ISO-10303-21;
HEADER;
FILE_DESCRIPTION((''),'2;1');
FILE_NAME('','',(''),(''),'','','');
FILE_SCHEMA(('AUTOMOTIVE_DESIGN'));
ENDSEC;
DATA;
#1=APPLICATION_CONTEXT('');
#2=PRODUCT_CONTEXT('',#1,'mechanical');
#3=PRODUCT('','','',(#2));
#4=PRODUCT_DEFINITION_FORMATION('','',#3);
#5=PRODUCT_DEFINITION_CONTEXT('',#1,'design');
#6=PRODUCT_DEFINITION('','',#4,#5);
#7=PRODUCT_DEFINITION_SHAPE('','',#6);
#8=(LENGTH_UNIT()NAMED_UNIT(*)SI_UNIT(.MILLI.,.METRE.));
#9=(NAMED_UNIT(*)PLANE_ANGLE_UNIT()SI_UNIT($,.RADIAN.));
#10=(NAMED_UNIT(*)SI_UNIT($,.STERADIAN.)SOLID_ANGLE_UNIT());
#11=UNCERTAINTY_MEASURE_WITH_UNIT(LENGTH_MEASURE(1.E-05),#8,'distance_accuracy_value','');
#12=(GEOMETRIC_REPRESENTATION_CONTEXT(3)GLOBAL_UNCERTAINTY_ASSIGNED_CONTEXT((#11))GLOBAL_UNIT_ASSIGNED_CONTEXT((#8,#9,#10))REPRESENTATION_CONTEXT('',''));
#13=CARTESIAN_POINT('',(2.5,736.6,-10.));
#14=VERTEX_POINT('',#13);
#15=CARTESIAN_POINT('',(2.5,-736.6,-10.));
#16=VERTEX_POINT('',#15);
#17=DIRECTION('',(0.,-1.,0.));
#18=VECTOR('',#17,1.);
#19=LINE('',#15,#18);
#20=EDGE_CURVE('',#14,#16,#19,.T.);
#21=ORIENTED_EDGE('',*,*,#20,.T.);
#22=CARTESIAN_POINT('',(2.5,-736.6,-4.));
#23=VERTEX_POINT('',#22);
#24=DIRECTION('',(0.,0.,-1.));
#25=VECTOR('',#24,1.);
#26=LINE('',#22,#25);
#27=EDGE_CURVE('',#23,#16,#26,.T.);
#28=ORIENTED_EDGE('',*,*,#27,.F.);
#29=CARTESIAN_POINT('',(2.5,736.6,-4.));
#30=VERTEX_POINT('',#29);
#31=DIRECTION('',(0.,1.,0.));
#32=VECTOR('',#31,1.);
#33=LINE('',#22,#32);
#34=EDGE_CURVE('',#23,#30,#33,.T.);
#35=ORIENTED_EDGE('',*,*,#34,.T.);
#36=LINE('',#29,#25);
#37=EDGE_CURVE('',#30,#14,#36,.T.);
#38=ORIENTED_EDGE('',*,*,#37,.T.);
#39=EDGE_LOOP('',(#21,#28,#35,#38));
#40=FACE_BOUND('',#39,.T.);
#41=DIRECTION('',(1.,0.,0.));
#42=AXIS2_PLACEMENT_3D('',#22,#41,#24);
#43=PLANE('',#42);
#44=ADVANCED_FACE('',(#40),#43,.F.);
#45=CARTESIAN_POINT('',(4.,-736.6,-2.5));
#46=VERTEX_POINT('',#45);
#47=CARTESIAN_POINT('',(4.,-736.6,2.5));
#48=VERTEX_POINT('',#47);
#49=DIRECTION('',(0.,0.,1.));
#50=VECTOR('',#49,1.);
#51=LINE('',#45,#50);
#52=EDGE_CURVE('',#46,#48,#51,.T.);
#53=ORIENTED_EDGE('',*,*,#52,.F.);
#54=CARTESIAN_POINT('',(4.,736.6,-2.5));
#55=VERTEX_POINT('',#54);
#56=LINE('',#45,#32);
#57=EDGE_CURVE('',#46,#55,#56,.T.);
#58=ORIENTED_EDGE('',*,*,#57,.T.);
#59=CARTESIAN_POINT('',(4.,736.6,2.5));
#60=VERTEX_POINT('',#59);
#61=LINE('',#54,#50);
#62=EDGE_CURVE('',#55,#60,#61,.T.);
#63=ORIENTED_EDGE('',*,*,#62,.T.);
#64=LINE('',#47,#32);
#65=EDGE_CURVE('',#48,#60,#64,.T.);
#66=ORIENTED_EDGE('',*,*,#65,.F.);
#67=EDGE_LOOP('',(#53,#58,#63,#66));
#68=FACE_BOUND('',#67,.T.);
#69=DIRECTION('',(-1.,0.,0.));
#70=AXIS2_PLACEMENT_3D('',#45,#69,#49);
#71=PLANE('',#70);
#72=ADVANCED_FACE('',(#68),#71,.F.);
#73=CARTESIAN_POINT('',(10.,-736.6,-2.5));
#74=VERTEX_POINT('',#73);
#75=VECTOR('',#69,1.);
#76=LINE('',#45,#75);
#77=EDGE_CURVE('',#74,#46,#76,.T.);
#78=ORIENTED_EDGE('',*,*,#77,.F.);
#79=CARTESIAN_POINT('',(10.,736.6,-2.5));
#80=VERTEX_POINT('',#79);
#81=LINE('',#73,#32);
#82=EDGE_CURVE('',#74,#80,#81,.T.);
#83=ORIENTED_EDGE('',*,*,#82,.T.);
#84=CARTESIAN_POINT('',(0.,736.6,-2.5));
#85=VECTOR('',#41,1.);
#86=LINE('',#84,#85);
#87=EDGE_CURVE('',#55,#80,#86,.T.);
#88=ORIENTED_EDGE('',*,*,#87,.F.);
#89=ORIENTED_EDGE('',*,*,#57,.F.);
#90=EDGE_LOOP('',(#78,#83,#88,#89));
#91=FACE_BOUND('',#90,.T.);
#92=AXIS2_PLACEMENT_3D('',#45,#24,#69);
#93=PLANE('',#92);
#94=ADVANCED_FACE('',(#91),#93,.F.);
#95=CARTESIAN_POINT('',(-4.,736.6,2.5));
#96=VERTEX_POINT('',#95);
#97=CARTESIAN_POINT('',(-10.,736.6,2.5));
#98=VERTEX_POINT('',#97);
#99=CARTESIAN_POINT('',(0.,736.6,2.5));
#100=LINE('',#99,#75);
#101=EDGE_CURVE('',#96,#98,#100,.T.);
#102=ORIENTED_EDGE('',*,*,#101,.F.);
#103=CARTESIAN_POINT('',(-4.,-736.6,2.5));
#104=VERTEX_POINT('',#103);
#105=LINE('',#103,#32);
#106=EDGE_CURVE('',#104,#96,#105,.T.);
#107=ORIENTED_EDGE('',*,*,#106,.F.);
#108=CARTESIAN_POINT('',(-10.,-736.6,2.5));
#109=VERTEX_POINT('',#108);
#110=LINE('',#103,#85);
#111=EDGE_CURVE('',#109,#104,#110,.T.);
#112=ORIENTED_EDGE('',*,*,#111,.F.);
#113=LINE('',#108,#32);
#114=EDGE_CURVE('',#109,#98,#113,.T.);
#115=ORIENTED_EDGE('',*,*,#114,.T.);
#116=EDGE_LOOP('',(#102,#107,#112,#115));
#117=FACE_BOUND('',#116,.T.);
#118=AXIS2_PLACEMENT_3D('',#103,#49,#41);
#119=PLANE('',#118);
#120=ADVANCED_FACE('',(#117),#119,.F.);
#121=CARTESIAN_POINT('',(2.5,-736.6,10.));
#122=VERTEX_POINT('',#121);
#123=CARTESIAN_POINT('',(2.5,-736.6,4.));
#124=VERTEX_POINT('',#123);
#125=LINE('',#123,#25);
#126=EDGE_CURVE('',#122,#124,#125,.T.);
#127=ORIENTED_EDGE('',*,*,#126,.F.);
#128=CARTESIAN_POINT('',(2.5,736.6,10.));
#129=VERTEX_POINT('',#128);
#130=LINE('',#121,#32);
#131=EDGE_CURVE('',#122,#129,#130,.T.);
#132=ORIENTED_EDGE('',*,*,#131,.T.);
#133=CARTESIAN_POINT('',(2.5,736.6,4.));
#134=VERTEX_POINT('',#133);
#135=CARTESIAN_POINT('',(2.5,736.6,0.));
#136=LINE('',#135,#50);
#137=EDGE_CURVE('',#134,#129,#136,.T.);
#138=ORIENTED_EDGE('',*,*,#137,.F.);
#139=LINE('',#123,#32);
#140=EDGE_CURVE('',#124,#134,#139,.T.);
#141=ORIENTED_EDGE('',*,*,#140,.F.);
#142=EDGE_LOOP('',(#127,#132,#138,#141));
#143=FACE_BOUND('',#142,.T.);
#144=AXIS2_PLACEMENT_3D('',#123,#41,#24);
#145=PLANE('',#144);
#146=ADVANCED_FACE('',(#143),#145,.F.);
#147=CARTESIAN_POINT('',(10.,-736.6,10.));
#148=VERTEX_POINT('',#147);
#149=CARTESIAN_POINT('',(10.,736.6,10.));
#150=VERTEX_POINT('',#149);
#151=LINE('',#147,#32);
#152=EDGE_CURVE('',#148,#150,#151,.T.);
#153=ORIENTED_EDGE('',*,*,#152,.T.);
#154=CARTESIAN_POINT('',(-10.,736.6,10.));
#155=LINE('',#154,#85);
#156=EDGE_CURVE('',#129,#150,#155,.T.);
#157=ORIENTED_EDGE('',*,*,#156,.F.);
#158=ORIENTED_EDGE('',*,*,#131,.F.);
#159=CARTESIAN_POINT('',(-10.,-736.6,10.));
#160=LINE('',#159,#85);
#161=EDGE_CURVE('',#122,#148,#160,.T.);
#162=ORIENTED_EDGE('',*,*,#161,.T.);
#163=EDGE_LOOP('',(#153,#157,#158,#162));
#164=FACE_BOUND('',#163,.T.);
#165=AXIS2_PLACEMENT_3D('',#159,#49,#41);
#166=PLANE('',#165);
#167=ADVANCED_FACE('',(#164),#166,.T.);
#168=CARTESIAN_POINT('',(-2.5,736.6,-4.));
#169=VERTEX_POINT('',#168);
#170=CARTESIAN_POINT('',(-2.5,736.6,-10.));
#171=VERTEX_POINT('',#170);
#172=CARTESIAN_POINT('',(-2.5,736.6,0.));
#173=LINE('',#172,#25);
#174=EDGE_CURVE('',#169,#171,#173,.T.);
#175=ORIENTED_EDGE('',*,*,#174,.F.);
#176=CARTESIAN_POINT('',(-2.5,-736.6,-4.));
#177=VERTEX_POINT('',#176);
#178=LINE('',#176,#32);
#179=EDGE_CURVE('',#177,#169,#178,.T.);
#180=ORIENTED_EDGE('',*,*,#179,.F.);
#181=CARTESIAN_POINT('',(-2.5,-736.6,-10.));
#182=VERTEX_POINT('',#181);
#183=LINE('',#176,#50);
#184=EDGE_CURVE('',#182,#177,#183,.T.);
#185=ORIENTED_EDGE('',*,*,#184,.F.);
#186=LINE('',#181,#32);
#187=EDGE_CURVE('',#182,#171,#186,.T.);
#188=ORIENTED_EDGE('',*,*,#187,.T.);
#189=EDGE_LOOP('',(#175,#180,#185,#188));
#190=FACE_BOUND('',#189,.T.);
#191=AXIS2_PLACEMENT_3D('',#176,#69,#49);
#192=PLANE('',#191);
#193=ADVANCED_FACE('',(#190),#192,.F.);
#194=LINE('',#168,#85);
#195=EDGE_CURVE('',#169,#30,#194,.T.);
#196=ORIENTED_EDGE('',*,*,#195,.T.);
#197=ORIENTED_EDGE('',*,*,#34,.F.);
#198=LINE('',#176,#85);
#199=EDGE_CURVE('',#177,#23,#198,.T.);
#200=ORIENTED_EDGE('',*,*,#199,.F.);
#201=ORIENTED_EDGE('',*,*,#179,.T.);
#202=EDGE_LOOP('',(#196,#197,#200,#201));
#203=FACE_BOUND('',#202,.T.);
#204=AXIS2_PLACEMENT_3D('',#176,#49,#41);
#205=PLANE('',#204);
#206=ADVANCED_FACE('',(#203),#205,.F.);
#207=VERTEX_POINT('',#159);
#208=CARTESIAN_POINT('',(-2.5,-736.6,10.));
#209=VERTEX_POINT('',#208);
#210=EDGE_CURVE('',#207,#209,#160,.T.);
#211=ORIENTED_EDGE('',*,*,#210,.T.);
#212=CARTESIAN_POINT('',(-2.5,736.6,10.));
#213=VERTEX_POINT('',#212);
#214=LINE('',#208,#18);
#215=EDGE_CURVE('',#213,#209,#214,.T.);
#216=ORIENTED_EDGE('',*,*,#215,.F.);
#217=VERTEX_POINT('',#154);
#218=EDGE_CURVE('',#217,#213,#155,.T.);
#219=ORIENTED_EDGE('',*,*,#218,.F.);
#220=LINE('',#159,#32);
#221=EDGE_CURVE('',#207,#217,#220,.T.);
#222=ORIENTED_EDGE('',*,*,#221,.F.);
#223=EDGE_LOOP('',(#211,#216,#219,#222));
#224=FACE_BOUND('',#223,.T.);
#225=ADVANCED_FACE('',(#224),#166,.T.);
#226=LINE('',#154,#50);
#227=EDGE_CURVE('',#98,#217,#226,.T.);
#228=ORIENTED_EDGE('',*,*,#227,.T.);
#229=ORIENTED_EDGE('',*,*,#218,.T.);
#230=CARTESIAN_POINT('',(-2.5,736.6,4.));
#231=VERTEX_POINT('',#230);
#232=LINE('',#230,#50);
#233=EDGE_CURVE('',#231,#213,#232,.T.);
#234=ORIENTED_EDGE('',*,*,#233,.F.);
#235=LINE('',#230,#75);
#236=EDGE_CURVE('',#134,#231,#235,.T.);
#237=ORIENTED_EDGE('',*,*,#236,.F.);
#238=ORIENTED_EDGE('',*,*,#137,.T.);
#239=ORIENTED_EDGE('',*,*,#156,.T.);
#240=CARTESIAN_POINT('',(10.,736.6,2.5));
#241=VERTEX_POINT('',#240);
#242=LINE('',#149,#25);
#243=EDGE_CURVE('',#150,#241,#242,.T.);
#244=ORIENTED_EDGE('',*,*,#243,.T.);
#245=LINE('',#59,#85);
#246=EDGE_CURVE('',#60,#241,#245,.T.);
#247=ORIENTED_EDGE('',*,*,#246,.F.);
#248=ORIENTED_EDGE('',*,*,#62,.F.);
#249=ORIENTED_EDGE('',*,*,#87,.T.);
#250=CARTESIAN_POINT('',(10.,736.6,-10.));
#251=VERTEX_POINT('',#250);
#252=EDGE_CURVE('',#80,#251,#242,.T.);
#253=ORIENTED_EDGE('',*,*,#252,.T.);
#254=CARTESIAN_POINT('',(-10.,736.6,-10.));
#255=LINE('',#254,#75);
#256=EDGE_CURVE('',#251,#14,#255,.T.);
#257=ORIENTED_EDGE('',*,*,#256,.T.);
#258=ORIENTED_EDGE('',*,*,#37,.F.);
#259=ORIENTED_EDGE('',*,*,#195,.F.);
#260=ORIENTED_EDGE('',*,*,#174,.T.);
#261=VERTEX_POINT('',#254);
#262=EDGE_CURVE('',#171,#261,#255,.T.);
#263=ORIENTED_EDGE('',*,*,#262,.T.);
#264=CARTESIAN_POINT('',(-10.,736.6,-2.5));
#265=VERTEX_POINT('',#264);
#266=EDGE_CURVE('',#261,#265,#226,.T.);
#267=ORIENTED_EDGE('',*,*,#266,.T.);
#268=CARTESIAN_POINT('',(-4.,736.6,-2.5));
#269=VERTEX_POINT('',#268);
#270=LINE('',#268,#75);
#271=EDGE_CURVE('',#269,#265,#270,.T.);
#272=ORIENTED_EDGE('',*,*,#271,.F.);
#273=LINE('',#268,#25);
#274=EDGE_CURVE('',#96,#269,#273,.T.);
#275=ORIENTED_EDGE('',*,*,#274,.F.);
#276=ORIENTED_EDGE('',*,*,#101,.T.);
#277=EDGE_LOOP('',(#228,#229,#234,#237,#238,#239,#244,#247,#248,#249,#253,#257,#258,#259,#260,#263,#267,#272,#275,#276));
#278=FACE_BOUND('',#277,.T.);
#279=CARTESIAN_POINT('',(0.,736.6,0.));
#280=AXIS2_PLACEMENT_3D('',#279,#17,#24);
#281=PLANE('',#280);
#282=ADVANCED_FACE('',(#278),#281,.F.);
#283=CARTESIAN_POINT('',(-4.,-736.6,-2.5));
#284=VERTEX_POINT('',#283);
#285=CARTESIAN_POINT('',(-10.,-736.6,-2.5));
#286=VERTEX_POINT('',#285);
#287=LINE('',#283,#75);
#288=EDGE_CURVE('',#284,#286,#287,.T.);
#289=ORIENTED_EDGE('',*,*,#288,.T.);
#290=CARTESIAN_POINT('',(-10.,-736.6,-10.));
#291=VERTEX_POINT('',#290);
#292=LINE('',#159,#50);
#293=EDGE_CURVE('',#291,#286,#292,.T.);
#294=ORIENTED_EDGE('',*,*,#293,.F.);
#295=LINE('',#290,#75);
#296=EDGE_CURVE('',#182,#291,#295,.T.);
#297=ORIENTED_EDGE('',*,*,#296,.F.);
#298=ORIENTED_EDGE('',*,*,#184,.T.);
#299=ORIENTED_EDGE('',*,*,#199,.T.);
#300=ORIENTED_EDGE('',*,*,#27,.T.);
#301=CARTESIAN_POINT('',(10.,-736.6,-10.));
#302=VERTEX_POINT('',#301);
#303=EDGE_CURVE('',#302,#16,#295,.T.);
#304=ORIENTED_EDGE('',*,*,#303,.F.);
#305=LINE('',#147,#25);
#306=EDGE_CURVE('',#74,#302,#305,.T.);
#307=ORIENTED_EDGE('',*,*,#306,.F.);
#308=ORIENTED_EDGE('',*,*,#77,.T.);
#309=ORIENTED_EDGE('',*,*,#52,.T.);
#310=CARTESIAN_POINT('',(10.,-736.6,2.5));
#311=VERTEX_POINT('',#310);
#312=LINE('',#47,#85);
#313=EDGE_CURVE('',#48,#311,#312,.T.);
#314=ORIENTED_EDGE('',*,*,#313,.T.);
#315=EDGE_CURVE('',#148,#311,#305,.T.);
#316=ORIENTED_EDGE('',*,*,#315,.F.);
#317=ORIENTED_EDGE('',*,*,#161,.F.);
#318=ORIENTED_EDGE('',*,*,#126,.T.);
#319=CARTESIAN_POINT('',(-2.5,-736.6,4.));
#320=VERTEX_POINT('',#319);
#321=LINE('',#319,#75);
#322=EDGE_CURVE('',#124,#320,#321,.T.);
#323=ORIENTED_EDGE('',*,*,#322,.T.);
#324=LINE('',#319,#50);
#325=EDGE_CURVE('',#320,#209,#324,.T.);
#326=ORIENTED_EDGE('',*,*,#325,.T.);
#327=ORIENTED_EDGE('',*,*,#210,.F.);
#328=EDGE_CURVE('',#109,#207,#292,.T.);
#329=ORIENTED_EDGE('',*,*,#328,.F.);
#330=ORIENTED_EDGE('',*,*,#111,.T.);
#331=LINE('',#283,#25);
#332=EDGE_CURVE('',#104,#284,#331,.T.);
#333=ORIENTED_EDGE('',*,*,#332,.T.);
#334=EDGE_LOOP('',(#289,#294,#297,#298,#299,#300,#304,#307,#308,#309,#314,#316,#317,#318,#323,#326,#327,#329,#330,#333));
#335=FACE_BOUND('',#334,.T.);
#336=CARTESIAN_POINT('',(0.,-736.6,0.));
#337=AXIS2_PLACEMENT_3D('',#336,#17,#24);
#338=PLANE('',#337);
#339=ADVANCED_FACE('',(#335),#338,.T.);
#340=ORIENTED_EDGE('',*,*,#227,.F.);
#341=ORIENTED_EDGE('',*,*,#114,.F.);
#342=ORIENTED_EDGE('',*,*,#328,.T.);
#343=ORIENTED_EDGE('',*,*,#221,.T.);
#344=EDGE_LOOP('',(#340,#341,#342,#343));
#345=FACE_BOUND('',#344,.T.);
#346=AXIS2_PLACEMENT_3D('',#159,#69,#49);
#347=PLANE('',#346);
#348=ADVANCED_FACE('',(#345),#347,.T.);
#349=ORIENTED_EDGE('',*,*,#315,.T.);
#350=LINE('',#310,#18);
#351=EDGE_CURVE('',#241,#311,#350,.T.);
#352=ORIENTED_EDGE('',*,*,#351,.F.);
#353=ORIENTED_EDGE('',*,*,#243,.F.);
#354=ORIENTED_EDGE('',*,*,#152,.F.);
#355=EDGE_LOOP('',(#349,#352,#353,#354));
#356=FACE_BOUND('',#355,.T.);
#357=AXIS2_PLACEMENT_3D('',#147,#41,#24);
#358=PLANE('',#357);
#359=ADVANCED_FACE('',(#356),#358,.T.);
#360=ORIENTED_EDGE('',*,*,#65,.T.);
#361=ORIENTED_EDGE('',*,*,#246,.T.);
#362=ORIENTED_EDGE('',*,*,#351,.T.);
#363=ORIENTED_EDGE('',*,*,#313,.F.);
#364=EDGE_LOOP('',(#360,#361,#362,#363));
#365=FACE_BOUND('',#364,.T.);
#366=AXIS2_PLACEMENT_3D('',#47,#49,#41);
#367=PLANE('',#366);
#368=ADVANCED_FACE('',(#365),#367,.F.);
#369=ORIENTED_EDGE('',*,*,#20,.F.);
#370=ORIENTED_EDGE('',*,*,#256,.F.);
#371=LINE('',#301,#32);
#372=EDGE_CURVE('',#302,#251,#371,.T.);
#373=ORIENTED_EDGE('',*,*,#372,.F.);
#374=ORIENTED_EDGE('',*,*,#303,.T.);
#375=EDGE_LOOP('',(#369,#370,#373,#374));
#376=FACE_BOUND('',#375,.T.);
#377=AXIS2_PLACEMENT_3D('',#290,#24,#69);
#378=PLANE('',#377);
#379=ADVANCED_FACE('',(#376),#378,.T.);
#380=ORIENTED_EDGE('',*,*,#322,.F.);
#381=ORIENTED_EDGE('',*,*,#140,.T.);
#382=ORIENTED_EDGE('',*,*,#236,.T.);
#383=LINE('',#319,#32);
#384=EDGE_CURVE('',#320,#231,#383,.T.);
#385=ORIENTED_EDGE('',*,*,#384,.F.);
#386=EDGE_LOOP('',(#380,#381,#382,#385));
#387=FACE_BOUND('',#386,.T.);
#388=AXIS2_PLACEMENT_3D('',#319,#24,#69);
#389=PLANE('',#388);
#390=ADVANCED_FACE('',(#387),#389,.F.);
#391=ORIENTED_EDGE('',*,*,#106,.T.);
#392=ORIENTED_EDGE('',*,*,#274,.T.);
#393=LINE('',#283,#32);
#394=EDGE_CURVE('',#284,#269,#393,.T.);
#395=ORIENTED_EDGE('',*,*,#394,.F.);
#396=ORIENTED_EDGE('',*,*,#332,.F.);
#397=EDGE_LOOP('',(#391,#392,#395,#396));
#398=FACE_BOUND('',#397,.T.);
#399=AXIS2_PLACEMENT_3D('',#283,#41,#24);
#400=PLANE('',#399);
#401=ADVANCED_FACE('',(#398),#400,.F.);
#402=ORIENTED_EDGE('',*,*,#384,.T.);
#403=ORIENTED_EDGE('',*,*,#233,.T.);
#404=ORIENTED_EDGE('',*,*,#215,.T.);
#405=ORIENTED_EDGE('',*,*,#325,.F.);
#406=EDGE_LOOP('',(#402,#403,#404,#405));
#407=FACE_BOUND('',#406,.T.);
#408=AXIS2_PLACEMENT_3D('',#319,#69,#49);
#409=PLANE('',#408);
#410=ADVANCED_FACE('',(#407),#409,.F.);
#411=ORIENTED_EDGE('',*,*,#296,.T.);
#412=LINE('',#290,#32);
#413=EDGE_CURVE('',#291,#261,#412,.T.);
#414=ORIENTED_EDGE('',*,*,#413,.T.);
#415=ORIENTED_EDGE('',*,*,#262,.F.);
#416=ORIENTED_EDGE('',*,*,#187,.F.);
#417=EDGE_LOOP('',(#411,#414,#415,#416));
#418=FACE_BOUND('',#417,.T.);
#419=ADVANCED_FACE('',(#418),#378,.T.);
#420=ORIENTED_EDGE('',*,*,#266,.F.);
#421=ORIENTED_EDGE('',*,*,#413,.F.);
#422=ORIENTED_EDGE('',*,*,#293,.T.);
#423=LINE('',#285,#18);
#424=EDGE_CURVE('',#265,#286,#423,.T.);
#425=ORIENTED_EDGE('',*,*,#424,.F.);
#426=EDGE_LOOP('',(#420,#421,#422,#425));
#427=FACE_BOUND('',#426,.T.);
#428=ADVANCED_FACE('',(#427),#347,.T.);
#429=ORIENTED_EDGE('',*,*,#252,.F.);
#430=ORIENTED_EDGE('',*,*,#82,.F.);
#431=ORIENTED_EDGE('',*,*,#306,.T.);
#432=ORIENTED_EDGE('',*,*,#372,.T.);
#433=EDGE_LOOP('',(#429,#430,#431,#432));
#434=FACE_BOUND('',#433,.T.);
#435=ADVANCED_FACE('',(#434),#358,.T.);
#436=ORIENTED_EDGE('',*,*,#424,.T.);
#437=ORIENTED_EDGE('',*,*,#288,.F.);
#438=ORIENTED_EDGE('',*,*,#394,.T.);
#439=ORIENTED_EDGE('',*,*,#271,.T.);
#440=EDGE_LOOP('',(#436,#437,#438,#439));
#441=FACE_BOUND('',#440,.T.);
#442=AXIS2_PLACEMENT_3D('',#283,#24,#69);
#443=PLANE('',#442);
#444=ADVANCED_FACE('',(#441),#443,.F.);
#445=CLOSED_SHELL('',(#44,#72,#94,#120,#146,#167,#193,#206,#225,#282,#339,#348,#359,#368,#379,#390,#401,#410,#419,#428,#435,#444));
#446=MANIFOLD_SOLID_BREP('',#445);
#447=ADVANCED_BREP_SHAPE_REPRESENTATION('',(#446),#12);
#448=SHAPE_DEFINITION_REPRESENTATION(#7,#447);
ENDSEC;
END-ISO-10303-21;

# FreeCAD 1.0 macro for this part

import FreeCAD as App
import Part
import Sketcher
Q = App.Units.Quantity


def add_polygon(sketch, points):
    """Adds a closed chain of lines whose ends are joined by coincident constraints."""
    first, n = sketch.GeometryCount, len(points)
    for a, b in zip(points, points[1:] + points[:1]):
        sketch.addGeometry(Part.LineSegment(App.Vector(*a, 0), App.Vector(*b, 0)), False)
    for i in range(n):
        sketch.addConstraint(Sketcher.Constraint("Coincident", first + i, 2, first + (i + 1) % n, 1))

doc = App.newDocument("Part")
body = doc.addObject("PartDesign::Body", "Body")

sketch1 = body.newObject("Sketcher::SketchObject", "Sketch")
sketch1.AttachmentSupport = (doc.getObject("XZ_Plane"), [""])
sketch1.MapMode = "FlatFace"
add_polygon(sketch1, [(-10, -10), (-10, 10), (10, 10), (10, -10)])
sketch1.addConstraint([
    Sketcher.Constraint("Vertical", 0),
    Sketcher.Constraint("Horizontal", 1),
    Sketcher.Constraint("Vertical", 2),
    Sketcher.Constraint("Horizontal", 3),
    Sketcher.Constraint("Symmetric", 0, 2, 2, 2, -1, 1),
    Sketcher.Constraint("Equal", 3, 0),
    Sketcher.Constraint("DistanceX", 1, 1, 1, 2, Q("20 mm")),
])
pad1 = body.newObject("PartDesign::Pad", "Pad")
pad1.Profile = sketch1
pad1.Type = "TwoLengths"
pad1.Length = 736.6
pad1.Length2 = 736.6
pad1.Reversed = True

sketch2 = body.newObject("Sketcher::SketchObject", "Sketch001")
sketch2.AttachmentSupport = (doc.getObject("XZ_Plane"), [""])
sketch2.MapMode = "FlatFace"
add_polygon(sketch2, [(-2, -16), (-2, -4), (2, -4), (2, -16)])
add_polygon(sketch2, [(4, -2), (4, 2), (16, 2), (16, -2)])
add_polygon(sketch2, [(-16, -2), (-16, 2), (-4, 2), (-4, -2)])
add_polygon(sketch2, [(-2, 4), (-2, 16), (2, 16), (2, 4)])
sketch2.addConstraint([
    Sketcher.Constraint("Vertical", 0),
    Sketcher.Constraint("Horizontal", 1),
    Sketcher.Constraint("Vertical", 2),
    Sketcher.Constraint("Horizontal", 3),
    Sketcher.Constraint("Vertical", 4),
    Sketcher.Constraint("Horizontal", 5),
    Sketcher.Constraint("Vertical", 6),
    Sketcher.Constraint("Horizontal", 7),
    Sketcher.Constraint("Vertical", 8),
    Sketcher.Constraint("Horizontal", 9),
    Sketcher.Constraint("Vertical", 10),
    Sketcher.Constraint("Horizontal", 11),
    Sketcher.Constraint("Vertical", 12),
    Sketcher.Constraint("Horizontal", 13),
    Sketcher.Constraint("Vertical", 14),
    Sketcher.Constraint("Horizontal", 15),
    Sketcher.Constraint("Symmetric", 6, 2, 8, 2, -1, 1),
    Sketcher.Constraint("Symmetric", 4, 2, 10, 2, -1, 1),
    Sketcher.Constraint("Symmetric", 2, 2, 12, 2, -1, 1),
    Sketcher.Constraint("Symmetric", 0, 2, 14, 2, -1, 1),
    Sketcher.Constraint("Horizontal", 5, 2, 8, 2),
    Sketcher.Constraint("Vertical", 3, 2, 12, 2),
    Sketcher.Constraint("Equal", 11, 0),
    Sketcher.Constraint("Equal", 15, 4),
    Sketcher.Constraint("DistanceX", 1, 1, 1, 2, Q("5 mm")),
    Sketcher.Constraint("DistanceX", 5, 1, 5, 2, Q("12 mm")),
    Sketcher.Constraint("DistanceY", 0, 2, -1, 1, Q("4 mm")),
    Sketcher.Constraint("DistanceX", -1, 1, 4, 2, Q("4 mm")),
])
pocket1 = body.newObject("PartDesign::Pocket", "Pocket")
pocket1.Profile = sketch2
pocket1.Type = "ThroughAll"
pocket1.Midplane = True

doc.recompute()
